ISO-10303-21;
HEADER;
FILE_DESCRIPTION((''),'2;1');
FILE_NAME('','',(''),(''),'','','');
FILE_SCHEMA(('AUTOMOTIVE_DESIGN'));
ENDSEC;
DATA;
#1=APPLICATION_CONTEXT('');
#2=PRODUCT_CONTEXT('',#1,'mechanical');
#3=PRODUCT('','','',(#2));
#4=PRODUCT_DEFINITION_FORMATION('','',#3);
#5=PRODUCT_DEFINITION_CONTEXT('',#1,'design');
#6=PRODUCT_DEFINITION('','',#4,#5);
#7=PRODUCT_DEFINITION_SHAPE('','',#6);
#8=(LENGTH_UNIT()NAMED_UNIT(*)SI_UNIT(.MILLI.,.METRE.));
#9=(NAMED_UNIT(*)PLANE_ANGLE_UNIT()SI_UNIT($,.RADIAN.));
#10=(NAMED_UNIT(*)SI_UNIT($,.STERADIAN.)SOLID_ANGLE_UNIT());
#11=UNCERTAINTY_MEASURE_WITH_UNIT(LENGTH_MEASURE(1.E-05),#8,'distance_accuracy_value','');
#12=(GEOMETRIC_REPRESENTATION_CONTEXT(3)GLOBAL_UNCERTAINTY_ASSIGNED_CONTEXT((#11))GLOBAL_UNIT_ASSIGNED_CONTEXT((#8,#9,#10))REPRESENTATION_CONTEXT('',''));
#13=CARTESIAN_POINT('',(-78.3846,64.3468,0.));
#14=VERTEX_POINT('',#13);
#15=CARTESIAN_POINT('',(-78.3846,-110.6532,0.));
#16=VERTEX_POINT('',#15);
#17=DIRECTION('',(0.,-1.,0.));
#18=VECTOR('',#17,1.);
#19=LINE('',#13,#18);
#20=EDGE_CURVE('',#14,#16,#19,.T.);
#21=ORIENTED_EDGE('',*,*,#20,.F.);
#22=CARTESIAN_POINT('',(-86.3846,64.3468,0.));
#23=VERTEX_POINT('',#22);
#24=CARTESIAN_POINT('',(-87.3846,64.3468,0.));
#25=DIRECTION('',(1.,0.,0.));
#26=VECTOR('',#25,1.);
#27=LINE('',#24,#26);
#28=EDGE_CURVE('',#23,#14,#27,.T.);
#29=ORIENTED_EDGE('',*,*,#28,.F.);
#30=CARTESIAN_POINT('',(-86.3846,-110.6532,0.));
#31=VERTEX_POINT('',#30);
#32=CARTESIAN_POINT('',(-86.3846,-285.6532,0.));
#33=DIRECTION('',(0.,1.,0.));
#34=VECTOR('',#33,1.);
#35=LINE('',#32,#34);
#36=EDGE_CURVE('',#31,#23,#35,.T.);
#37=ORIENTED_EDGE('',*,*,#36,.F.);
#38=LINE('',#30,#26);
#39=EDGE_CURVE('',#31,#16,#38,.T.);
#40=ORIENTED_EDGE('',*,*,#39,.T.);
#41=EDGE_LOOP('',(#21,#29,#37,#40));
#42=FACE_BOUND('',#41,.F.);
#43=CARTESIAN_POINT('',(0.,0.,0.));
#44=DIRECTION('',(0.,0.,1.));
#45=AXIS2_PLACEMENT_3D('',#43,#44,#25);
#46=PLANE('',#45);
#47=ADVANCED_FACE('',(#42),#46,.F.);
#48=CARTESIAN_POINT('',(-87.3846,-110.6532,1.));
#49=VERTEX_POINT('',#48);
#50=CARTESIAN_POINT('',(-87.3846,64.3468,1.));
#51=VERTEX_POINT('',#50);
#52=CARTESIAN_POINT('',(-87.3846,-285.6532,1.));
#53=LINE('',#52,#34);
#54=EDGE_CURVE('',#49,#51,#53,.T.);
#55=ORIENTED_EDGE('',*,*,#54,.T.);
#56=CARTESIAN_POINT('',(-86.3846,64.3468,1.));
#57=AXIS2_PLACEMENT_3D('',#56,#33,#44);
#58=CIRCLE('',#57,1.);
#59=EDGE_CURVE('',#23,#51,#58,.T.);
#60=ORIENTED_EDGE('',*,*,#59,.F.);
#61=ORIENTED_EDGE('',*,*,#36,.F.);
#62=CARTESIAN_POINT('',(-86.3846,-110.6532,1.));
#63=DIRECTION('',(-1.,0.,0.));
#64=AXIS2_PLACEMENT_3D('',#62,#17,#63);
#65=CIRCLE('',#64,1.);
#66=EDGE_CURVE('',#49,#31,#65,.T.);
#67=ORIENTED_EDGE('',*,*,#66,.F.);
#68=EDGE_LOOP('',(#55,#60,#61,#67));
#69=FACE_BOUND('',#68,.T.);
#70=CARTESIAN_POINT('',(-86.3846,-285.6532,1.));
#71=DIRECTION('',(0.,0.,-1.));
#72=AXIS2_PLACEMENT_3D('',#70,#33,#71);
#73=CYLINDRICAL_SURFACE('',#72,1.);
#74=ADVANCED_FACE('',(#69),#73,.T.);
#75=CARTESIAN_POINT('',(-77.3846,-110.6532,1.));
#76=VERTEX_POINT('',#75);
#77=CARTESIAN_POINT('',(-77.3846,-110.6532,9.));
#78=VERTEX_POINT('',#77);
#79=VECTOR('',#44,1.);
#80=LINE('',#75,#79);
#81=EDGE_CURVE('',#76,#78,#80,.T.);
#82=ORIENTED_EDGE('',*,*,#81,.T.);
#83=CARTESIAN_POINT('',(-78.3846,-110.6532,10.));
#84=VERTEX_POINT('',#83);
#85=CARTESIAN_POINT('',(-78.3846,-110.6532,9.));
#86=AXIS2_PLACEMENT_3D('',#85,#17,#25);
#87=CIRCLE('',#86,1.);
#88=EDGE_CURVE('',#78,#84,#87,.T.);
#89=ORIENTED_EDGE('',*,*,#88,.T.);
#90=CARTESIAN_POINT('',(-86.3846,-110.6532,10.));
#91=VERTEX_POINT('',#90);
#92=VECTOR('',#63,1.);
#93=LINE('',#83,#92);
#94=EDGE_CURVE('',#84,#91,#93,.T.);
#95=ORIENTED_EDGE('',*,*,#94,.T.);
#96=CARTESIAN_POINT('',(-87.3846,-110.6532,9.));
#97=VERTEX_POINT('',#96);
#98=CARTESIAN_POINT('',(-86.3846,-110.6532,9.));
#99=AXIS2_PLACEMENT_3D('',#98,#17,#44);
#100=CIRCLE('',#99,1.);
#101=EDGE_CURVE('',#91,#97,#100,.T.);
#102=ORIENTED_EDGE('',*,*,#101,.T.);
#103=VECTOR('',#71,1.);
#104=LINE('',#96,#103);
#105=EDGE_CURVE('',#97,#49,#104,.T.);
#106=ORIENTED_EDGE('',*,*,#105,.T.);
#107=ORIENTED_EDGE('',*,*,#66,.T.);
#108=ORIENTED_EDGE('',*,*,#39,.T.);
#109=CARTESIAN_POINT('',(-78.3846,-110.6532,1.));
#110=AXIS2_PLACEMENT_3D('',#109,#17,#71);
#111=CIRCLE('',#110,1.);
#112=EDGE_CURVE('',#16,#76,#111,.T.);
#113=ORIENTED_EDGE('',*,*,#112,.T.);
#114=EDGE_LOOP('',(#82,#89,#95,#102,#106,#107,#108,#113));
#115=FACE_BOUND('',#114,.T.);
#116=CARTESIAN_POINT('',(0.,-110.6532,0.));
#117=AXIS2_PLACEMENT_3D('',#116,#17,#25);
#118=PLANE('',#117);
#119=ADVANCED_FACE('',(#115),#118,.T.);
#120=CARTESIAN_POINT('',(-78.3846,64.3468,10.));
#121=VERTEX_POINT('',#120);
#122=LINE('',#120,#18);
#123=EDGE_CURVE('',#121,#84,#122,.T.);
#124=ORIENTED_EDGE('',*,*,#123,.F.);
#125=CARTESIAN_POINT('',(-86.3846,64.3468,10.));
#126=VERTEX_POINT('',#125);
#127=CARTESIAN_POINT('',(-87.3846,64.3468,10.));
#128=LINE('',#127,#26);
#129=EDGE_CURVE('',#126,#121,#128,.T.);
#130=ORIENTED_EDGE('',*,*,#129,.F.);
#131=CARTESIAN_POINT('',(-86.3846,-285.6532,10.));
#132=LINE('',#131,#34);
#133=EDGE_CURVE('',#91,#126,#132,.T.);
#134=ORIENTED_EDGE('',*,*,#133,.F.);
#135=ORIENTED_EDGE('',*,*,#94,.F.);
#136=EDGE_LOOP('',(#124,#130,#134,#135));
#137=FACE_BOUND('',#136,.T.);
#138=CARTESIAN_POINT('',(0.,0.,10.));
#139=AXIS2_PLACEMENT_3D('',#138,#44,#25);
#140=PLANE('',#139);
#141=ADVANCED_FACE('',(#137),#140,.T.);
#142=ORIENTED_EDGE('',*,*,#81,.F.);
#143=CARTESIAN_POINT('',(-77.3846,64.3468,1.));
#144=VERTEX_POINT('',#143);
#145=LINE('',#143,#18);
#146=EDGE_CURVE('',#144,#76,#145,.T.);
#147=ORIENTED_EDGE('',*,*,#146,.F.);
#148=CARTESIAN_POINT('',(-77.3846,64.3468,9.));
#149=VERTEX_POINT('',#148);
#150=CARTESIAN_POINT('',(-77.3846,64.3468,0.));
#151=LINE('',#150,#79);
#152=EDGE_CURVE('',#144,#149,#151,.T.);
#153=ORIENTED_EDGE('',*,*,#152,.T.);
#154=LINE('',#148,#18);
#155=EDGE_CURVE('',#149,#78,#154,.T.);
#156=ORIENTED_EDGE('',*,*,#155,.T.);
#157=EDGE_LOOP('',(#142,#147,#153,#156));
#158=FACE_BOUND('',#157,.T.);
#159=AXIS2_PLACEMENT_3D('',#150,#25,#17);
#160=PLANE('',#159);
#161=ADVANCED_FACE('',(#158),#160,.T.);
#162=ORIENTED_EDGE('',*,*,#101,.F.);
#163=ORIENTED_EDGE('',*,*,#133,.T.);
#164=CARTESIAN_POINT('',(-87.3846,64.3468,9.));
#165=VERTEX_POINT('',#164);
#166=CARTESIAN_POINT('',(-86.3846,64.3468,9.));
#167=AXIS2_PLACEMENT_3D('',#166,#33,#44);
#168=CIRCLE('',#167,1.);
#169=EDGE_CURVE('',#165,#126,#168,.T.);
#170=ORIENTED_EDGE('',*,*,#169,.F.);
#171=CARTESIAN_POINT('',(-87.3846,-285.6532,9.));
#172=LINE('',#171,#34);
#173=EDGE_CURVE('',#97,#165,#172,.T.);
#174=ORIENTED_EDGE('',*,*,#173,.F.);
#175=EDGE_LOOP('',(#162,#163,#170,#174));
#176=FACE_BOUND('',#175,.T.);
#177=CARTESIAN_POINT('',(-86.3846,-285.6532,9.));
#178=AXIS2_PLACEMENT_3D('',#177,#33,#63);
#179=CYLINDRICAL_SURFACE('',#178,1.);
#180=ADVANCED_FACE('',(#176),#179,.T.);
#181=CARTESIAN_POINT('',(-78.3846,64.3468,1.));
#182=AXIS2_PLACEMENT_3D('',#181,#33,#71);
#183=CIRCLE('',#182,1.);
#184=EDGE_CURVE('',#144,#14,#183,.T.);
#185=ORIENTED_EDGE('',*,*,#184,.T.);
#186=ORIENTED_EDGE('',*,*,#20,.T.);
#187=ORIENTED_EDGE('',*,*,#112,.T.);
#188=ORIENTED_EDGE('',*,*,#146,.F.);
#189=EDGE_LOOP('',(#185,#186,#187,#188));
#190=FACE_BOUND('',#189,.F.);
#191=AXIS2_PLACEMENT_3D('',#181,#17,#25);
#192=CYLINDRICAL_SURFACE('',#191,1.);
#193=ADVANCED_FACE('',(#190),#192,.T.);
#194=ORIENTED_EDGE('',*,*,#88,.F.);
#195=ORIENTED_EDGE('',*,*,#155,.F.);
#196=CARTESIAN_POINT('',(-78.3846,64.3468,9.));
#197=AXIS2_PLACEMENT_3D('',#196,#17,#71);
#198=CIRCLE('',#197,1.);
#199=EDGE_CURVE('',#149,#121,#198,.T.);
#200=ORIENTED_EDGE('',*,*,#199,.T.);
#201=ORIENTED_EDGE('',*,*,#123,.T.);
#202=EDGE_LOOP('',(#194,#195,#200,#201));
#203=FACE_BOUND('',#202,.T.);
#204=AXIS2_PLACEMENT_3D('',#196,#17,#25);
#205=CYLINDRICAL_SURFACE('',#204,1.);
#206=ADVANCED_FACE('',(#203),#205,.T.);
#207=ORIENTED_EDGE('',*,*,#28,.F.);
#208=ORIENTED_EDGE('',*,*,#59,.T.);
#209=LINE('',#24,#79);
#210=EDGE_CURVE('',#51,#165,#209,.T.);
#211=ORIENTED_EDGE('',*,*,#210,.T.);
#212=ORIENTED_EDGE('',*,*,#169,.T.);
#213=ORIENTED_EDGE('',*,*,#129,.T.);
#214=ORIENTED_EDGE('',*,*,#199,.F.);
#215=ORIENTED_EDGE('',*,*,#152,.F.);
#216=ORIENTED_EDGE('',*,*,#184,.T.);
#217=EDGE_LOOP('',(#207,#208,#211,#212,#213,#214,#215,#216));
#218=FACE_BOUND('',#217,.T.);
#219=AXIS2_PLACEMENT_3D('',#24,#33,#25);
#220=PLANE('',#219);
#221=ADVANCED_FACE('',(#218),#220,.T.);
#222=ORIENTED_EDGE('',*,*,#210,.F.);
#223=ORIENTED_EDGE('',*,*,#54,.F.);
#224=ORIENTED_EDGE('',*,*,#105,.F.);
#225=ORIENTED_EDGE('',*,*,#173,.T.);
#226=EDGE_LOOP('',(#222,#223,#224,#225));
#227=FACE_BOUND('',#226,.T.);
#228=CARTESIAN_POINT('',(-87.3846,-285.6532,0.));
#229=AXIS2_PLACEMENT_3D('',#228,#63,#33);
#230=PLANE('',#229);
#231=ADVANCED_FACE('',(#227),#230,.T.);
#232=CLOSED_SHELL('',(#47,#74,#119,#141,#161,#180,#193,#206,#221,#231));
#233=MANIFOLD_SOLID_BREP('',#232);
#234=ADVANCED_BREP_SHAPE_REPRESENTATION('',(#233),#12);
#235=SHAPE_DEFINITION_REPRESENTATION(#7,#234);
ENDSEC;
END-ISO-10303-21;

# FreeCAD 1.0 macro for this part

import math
import FreeCAD as App
import Part
import Sketcher
from FreeCAD import Vector


def edges_at(feature, points):
    """Names of the edges that pass closest to the given points."""
    edges = feature.Shape.Edges
    near = lambda p: min(range(len(edges)), key=lambda i: edges[i].distToShape(Part.Vertex(*p))[0])
    return sorted({f"Edge{near(p) + 1}" for p in points})


def add_polygon(sketch, points):
    """Adds a closed chain of lines whose ends are joined by coincident constraints."""
    first, n = sketch.GeometryCount, len(points)
    for a, b in zip(points, points[1:] + points[:1]):
        sketch.addGeometry(Part.LineSegment(App.Vector(*a, 0), App.Vector(*b, 0)), False)
    for i in range(n):
        sketch.addConstraint(Sketcher.Constraint("Coincident", first + i, 2, first + (i + 1) % n, 1))

doc = App.newDocument("Part")
body = doc.addObject("PartDesign::Body", "Body")

# Sketch on XY plane
sketch1 = body.newObject("Sketcher::SketchObject", "Sketch")
sketch1.AttachmentSupport = (doc.getObject("XY_Plane"), [""])
sketch1.MapMode = "FlatFace"
add_polygon(sketch1, [(-87, -286), (-77, -286), (-77, 64), (-87, 64)])  # lines 0-3
sketch1.addConstraint([
    Sketcher.Constraint("Horizontal", 0),
    Sketcher.Constraint("Vertical", 1),
    Sketcher.Constraint("Horizontal", 2),
    Sketcher.Constraint("Vertical", 3),
    Sketcher.Constraint("DistanceX", 0, 1, 0, 2, 10.0),
    Sketcher.Constraint("DistanceY", 1, 1, 1, 2, 350.0),
    Sketcher.Constraint("DistanceX", 0, 2, -1, 1, 77.3846),
    Sketcher.Constraint("DistanceY", 0, 2, -1, 1, 285.6532),
])
pad1 = body.newObject("PartDesign::Pad", "Pad")
pad1.Profile = sketch1
pad1.Length = 10
doc.recompute()

fillet = body.newObject("PartDesign::Fillet", "Fillet")
fillet.Base = (pad1, edges_at(pad1, [(-77.385, -110.653, 10), (-87.385, -110.653, 10)]))
fillet.Radius = 1
doc.recompute()

fillet2 = body.newObject("PartDesign::Fillet", "Fillet001")
fillet2.Base = (fillet, edges_at(fillet, [(-77.385, -110.653, 0), (-87.385, -110.653, 0)]))
fillet2.Radius = 1

# Sketch on XZ plane
sketch2 = body.newObject("Sketcher::SketchObject", "Sketch001")
sketch2.AttachmentSupport = (doc.getObject("XZ_Plane"), [""])
sketch2.MapMode = "FlatFace"
sketch2.AttachmentOffset = App.Placement(Vector(0, 0, 285.6532), App.Rotation())
sketch2.addGeometry([
    Part.LineSegment(Vector(-87.4, 9, 0), Vector(-87.4, 1, 0)),  # 0
    Part.ArcOfCircle(Part.Circle(Vector(-86.4, 1, 0), Vector(0, 0, 1), 1), math.radians(180), math.radians(270)),  # 1
    Part.LineSegment(Vector(-86.4, 0, 0), Vector(-78.4, 0, 0)),  # 2
    Part.ArcOfCircle(Part.Circle(Vector(-78.4, 1, 0), Vector(0, 0, 1), 1), math.radians(-90), math.radians(0)),  # 3
    Part.LineSegment(Vector(-77.4, 1, 0), Vector(-77.4, 9, 0)),  # 4
    Part.ArcOfCircle(Part.Circle(Vector(-78.4, 9, 0), Vector(0, 0, 1), 1), math.radians(0), math.radians(90)),  # 5
    Part.LineSegment(Vector(-78.4, 10, 0), Vector(-86.4, 10, 0)),  # 6
    Part.ArcOfCircle(Part.Circle(Vector(-86.4, 9, 0), Vector(0, 0, 1), 1), math.radians(90), math.radians(180)),  # 7
], False)
sketch2.addConstraint([
    Sketcher.Constraint("Tangent", 0, 2, 1, 1),
    Sketcher.Constraint("Tangent", 1, 2, 2, 1),
    Sketcher.Constraint("Tangent", 2, 2, 3, 1),
    Sketcher.Constraint("Tangent", 3, 2, 4, 1),
    Sketcher.Constraint("Tangent", 4, 2, 5, 1),
    Sketcher.Constraint("Tangent", 5, 2, 6, 1),
    Sketcher.Constraint("Tangent", 6, 2, 7, 1),
    Sketcher.Constraint("Tangent", 7, 2, 0, 1),
    Sketcher.Constraint("Vertical", 0),
    Sketcher.Constraint("Horizontal", 2),
    Sketcher.Constraint("Vertical", 4),
    Sketcher.Constraint("Horizontal", 6),
    Sketcher.Constraint("Equal", 1, 3),
    Sketcher.Constraint("Equal", 3, 5),
    Sketcher.Constraint("Equal", 5, 7),
    Sketcher.Constraint("PointOnObject", 1, 2, -1),
    Sketcher.Constraint("Equal", 6, 0),
    Sketcher.Constraint("Radius", 1, 1.0),
    Sketcher.Constraint("DistanceX", 2, 1, 2, 2, 8.0),
    Sketcher.Constraint("DistanceX", 1, 3, -1, 1, 86.3846),
])
pocket1 = body.newObject("PartDesign::Pocket", "Pocket")
pocket1.Profile = sketch2
pocket1.Length = 175

doc.recompute()
